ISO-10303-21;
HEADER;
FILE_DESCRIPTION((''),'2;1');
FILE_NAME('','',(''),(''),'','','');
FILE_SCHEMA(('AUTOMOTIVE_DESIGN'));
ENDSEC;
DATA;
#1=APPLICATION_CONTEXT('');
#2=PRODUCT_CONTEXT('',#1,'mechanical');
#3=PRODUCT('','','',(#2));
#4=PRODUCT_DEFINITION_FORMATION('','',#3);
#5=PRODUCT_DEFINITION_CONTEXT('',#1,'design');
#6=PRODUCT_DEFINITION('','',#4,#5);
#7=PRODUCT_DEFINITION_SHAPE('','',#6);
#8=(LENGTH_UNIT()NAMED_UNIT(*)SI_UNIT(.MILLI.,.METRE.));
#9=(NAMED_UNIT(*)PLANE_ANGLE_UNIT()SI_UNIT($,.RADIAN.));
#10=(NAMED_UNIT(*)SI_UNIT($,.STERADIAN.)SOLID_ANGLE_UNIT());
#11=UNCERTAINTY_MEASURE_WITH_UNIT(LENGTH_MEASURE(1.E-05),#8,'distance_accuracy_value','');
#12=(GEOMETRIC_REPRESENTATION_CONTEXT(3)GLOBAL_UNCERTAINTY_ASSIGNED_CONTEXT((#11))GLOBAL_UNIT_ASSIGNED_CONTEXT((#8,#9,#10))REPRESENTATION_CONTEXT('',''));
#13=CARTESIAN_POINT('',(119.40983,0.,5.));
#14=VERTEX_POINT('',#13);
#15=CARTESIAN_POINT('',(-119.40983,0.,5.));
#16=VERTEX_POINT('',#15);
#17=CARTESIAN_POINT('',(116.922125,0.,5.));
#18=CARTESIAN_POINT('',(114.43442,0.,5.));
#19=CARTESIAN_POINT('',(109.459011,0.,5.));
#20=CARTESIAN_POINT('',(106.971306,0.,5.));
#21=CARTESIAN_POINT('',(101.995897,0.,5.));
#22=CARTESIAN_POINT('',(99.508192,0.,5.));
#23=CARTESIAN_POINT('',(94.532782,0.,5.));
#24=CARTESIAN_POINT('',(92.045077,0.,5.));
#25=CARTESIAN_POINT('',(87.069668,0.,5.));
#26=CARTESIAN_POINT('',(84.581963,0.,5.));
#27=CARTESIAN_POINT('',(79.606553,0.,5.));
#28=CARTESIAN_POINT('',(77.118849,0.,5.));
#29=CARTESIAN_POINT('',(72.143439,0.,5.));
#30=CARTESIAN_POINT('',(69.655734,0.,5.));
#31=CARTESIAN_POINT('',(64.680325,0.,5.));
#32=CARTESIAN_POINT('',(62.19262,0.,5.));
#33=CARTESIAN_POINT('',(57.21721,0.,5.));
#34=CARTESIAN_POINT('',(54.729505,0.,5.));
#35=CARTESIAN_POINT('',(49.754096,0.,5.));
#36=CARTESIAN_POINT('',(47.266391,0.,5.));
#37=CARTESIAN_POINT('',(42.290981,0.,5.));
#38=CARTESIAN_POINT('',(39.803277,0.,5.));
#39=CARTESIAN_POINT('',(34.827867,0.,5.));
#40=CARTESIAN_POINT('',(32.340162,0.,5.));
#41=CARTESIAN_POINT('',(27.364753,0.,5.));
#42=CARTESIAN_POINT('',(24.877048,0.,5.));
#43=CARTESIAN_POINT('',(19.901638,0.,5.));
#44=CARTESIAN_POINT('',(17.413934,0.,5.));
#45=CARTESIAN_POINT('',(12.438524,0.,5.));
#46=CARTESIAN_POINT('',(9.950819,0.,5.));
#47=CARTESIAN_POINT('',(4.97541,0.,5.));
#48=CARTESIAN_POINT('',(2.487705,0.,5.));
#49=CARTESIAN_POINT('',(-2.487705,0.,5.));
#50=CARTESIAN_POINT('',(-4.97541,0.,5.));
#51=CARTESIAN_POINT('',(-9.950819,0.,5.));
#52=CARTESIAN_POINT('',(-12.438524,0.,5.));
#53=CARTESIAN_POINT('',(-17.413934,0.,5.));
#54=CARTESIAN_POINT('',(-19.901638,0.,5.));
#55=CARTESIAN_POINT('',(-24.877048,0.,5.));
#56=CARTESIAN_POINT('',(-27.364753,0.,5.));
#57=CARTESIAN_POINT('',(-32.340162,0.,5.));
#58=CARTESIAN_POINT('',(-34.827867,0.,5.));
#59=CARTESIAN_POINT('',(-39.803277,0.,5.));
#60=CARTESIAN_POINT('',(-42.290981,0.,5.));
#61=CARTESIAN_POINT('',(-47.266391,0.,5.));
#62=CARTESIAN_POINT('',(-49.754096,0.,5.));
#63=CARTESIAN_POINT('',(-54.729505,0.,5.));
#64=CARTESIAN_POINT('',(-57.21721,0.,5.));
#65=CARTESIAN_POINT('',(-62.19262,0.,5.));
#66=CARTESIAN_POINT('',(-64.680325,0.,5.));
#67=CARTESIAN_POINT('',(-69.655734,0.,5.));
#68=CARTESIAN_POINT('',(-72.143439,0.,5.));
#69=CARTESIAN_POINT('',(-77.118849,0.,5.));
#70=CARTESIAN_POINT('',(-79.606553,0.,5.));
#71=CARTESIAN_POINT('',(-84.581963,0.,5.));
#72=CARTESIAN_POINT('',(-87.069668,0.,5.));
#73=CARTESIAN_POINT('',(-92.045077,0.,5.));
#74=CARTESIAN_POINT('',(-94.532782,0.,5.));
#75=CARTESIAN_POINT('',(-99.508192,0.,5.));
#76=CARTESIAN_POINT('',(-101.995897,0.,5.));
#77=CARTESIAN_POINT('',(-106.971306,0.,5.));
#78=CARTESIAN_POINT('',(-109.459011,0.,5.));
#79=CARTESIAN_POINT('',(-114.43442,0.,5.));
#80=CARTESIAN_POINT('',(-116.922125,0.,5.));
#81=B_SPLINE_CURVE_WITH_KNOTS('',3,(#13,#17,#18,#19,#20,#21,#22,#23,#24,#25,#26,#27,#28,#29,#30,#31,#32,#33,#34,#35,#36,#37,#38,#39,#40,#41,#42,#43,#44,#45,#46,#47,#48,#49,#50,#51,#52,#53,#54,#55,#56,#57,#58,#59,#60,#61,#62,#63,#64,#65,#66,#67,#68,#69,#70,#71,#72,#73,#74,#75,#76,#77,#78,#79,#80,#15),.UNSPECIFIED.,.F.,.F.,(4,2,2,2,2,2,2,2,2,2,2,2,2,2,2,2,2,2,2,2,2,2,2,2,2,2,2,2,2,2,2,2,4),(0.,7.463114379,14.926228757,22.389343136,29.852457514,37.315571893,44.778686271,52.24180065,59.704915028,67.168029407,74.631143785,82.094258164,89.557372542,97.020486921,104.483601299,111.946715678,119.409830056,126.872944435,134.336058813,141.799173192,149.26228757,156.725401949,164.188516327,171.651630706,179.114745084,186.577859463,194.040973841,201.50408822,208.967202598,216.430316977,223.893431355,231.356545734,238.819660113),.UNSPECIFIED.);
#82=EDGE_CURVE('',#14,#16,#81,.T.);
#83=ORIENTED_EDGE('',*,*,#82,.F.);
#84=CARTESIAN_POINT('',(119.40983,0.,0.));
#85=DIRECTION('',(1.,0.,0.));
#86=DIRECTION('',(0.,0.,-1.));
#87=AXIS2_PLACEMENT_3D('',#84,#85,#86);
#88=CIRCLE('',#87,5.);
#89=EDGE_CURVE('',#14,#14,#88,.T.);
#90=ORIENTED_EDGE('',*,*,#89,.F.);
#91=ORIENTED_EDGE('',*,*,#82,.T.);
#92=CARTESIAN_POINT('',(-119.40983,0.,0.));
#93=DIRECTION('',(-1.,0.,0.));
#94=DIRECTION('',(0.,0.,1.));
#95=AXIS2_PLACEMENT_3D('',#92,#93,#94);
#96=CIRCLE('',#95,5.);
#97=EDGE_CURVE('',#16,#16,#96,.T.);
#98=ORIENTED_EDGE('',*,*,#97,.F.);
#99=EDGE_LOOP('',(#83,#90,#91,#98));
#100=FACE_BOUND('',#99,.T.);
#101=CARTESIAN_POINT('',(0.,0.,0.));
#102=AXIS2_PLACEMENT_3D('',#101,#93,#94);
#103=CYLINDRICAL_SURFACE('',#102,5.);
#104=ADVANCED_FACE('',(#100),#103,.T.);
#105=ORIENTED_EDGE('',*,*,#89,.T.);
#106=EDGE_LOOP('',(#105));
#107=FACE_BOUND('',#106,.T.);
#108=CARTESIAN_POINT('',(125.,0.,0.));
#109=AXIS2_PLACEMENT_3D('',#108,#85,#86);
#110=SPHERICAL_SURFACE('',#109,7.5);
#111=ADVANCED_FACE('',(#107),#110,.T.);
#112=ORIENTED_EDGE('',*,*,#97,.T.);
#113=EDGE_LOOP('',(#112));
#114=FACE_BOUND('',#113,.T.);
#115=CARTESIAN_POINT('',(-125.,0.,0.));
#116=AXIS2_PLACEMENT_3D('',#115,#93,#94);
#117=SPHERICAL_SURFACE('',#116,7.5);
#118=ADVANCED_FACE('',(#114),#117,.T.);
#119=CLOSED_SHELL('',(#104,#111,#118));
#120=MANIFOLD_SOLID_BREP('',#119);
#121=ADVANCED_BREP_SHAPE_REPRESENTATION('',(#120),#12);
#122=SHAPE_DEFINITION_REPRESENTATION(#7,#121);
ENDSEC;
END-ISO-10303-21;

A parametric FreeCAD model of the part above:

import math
import FreeCAD as App
import Part
import Sketcher
from FreeCAD import Vector


def add_polygon(sketch, points):
    """Adds a closed chain of lines whose ends are joined by coincident constraints."""
    first, n = sketch.GeometryCount, len(points)
    for a, b in zip(points, points[1:] + points[:1]):
        sketch.addGeometry(Part.LineSegment(App.Vector(*a, 0), App.Vector(*b, 0)), False)
    for i in range(n):
        sketch.addConstraint(Sketcher.Constraint("Coincident", first + i, 2, first + (i + 1) % n, 1))

doc = App.newDocument("Part")
body = doc.addObject("PartDesign::Body", "Body")

# Sketch on XY plane
sketch1 = body.newObject("Sketcher::SketchObject", "Sketch")
sketch1.AttachmentSupport = (doc.getObject("XY_Plane"), [""])
sketch1.MapMode = "FlatFace"
add_polygon(sketch1, [(0, 5), (0, 0), (125, 0), (125, 5)])  # lines 0-3
sketch1.addConstraint(Sketcher.Constraint("Vertical", 0))
sketch1.addConstraint(Sketcher.Constraint("Horizontal", 1))
sketch1.addConstraint(Sketcher.Constraint("Vertical", 2))
sketch1.addConstraint(Sketcher.Constraint("Horizontal", 3))
sketch1.addConstraint(Sketcher.Constraint("Coincident", 0, 2, -1, 1))
sketch1.addConstraint(Sketcher.Constraint("DistanceX", 1, 1, 1, 2, 125.0))
sketch1.addConstraint(Sketcher.Constraint("DistanceY", 0, 2, 0, 1, 5.0))
revolution = body.newObject("PartDesign::Revolution", "Revolution")
revolution.Profile = sketch1
revolution.ReferenceAxis = (sketch1, ["H_Axis"])
revolution.Angle = 360

# Sketch on YZ plane
sketch2 = body.newObject("Sketcher::SketchObject", "Sketch001")
sketch2.AttachmentSupport = (doc.getObject("YZ_Plane"), [""])
sketch2.MapMode = "FlatFace"
sketch2.AttachmentOffset = App.Placement(Vector(0, 0, 125), App.Rotation())
sketch2.addGeometry(Part.LineSegment(Vector(0, 7.5, 0), Vector(0, -7.5, 0)), False)
sketch2.addGeometry(Part.ArcOfCircle(Part.Circle(Vector(0, 0, 0), Vector(0, 0, 1), 7.5), math.radians(-90), math.radians(90)), False)
sketch2.addConstraint(Sketcher.Constraint("Coincident", 0, 1, 1, 2))
sketch2.addConstraint(Sketcher.Constraint("Coincident", 1, 1, 0, 2))
sketch2.addConstraint(Sketcher.Constraint("Vertical", 0))
sketch2.addConstraint(Sketcher.Constraint("Coincident", 1, 3, -1, 1))
sketch2.addConstraint(Sketcher.Constraint("PointOnObject", 0, 1, -2))
sketch2.addConstraint(Sketcher.Constraint("Radius", 1, 7.5))
revolution2 = body.newObject("PartDesign::Revolution", "Revolution001")
revolution2.Profile = sketch2
revolution2.ReferenceAxis = (sketch2, ["V_Axis"])
revolution2.Angle = 360
doc.recompute()

mirrored = body.newObject("PartDesign::Mirrored", "Mirrored")
mirrored.Originals = [revolution, revolution2]
mirrored.MirrorPlane = (doc.getObject("YZ_Plane"), [""])
body.Tip = mirrored

doc.recompute()
